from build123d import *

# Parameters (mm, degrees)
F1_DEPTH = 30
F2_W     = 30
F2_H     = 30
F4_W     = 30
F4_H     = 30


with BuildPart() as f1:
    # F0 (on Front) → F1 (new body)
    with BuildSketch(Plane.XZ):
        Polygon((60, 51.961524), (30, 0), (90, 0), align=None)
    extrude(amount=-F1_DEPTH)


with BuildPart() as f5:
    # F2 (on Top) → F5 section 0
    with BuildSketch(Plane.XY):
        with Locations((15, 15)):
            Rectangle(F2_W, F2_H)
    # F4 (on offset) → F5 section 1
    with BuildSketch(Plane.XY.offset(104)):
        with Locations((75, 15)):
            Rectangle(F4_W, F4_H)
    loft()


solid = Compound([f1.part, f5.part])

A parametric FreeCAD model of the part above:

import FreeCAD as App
import Part
import Sketcher
from FreeCAD import Vector
Q = App.Units.Quantity


def add_polygon(sketch, points):
    """Adds a closed chain of lines whose ends are joined by coincident constraints."""
    first, n = sketch.GeometryCount, len(points)
    for a, b in zip(points, points[1:] + points[:1]):
        sketch.addGeometry(Part.LineSegment(App.Vector(*a, 0), App.Vector(*b, 0)), False)
    for i in range(n):
        sketch.addConstraint(Sketcher.Constraint("Coincident", first + i, 2, first + (i + 1) % n, 1))

doc = App.newDocument("Part")
body = doc.addObject("PartDesign::Body", "Body")

# Sketch on XZ plane
sketch1 = body.newObject("Sketcher::SketchObject", "Sketch")
sketch1.AttachmentSupport = (doc.getObject("XZ_Plane"), [""])
sketch1.MapMode = "FlatFace"
add_polygon(sketch1, [(60, 51.961524), (30, 0), (90, 0)])  # lines 0-2
sketch1.addConstraint(Sketcher.Constraint("Horizontal", 1))
sketch1.addConstraint(Sketcher.Constraint("PointOnObject", 0, 2, -1))
sketch1.addConstraint(Sketcher.Constraint("Equal", 0, 2))
sketch1.addConstraint(Sketcher.Constraint("DistanceX", 1, 1, 1, 2, Q("60 mm")))
sketch1.addConstraint(Sketcher.Constraint("Angle", 0, Q("-120 deg")))
sketch1.addConstraint(Sketcher.Constraint("DistanceX", -1, 1, 0, 2, Q("30 mm")))
pad1 = body.newObject("PartDesign::Pad", "Pad")
pad1.Profile = sketch1
pad1.Length = 30
pad1.Reversed = True
body2 = doc.addObject("PartDesign::Body", "Body001")

# Sketch on XY plane
sketch2 = body2.newObject("Sketcher::SketchObject", "Sketch001")
sketch2.AttachmentSupport = (doc.getObject("XY_Plane001"), [""])
sketch2.MapMode = "FlatFace"
add_polygon(sketch2, [(0, 30), (0, 0), (30, 0), (30, 30)])  # lines 0-3
sketch2.addConstraint(Sketcher.Constraint("Vertical", 0))
sketch2.addConstraint(Sketcher.Constraint("Horizontal", 1))
sketch2.addConstraint(Sketcher.Constraint("Vertical", 2))
sketch2.addConstraint(Sketcher.Constraint("Horizontal", 3))
sketch2.addConstraint(Sketcher.Constraint("Coincident", 0, 2, -1, 1))
sketch2.addConstraint(Sketcher.Constraint("Equal", 3, 0))
sketch2.addConstraint(Sketcher.Constraint("DistanceX", 1, 1, 1, 2, Q("30 mm")))

# Sketch on XY plane
sketch3 = body2.newObject("Sketcher::SketchObject", "Sketch002")
sketch3.AttachmentSupport = (doc.getObject("XY_Plane001"), [""])
sketch3.MapMode = "FlatFace"
sketch3.AttachmentOffset = App.Placement(Vector(0, 0, 104), App.Rotation())
add_polygon(sketch3, [(60, 30), (60, 0), (90, 0), (90, 30)])  # lines 0-3
sketch3.addConstraint(Sketcher.Constraint("Vertical", 0))
sketch3.addConstraint(Sketcher.Constraint("Horizontal", 1))
sketch3.addConstraint(Sketcher.Constraint("Vertical", 2))
sketch3.addConstraint(Sketcher.Constraint("Horizontal", 3))
sketch3.addConstraint(Sketcher.Constraint("PointOnObject", 0, 2, -1))
sketch3.addConstraint(Sketcher.Constraint("Equal", 3, 0))
sketch3.addConstraint(Sketcher.Constraint("DistanceX", 1, 1, 1, 2, Q("30 mm")))
sketch3.addConstraint(Sketcher.Constraint("DistanceX", -1, 1, 0, 2, Q("60 mm")))

additiveloft = body2.newObject("PartDesign::AdditiveLoft", "AdditiveLoft")
additiveloft.Profile = sketch2
additiveloft.Sections = [sketch3]

doc.recompute()
